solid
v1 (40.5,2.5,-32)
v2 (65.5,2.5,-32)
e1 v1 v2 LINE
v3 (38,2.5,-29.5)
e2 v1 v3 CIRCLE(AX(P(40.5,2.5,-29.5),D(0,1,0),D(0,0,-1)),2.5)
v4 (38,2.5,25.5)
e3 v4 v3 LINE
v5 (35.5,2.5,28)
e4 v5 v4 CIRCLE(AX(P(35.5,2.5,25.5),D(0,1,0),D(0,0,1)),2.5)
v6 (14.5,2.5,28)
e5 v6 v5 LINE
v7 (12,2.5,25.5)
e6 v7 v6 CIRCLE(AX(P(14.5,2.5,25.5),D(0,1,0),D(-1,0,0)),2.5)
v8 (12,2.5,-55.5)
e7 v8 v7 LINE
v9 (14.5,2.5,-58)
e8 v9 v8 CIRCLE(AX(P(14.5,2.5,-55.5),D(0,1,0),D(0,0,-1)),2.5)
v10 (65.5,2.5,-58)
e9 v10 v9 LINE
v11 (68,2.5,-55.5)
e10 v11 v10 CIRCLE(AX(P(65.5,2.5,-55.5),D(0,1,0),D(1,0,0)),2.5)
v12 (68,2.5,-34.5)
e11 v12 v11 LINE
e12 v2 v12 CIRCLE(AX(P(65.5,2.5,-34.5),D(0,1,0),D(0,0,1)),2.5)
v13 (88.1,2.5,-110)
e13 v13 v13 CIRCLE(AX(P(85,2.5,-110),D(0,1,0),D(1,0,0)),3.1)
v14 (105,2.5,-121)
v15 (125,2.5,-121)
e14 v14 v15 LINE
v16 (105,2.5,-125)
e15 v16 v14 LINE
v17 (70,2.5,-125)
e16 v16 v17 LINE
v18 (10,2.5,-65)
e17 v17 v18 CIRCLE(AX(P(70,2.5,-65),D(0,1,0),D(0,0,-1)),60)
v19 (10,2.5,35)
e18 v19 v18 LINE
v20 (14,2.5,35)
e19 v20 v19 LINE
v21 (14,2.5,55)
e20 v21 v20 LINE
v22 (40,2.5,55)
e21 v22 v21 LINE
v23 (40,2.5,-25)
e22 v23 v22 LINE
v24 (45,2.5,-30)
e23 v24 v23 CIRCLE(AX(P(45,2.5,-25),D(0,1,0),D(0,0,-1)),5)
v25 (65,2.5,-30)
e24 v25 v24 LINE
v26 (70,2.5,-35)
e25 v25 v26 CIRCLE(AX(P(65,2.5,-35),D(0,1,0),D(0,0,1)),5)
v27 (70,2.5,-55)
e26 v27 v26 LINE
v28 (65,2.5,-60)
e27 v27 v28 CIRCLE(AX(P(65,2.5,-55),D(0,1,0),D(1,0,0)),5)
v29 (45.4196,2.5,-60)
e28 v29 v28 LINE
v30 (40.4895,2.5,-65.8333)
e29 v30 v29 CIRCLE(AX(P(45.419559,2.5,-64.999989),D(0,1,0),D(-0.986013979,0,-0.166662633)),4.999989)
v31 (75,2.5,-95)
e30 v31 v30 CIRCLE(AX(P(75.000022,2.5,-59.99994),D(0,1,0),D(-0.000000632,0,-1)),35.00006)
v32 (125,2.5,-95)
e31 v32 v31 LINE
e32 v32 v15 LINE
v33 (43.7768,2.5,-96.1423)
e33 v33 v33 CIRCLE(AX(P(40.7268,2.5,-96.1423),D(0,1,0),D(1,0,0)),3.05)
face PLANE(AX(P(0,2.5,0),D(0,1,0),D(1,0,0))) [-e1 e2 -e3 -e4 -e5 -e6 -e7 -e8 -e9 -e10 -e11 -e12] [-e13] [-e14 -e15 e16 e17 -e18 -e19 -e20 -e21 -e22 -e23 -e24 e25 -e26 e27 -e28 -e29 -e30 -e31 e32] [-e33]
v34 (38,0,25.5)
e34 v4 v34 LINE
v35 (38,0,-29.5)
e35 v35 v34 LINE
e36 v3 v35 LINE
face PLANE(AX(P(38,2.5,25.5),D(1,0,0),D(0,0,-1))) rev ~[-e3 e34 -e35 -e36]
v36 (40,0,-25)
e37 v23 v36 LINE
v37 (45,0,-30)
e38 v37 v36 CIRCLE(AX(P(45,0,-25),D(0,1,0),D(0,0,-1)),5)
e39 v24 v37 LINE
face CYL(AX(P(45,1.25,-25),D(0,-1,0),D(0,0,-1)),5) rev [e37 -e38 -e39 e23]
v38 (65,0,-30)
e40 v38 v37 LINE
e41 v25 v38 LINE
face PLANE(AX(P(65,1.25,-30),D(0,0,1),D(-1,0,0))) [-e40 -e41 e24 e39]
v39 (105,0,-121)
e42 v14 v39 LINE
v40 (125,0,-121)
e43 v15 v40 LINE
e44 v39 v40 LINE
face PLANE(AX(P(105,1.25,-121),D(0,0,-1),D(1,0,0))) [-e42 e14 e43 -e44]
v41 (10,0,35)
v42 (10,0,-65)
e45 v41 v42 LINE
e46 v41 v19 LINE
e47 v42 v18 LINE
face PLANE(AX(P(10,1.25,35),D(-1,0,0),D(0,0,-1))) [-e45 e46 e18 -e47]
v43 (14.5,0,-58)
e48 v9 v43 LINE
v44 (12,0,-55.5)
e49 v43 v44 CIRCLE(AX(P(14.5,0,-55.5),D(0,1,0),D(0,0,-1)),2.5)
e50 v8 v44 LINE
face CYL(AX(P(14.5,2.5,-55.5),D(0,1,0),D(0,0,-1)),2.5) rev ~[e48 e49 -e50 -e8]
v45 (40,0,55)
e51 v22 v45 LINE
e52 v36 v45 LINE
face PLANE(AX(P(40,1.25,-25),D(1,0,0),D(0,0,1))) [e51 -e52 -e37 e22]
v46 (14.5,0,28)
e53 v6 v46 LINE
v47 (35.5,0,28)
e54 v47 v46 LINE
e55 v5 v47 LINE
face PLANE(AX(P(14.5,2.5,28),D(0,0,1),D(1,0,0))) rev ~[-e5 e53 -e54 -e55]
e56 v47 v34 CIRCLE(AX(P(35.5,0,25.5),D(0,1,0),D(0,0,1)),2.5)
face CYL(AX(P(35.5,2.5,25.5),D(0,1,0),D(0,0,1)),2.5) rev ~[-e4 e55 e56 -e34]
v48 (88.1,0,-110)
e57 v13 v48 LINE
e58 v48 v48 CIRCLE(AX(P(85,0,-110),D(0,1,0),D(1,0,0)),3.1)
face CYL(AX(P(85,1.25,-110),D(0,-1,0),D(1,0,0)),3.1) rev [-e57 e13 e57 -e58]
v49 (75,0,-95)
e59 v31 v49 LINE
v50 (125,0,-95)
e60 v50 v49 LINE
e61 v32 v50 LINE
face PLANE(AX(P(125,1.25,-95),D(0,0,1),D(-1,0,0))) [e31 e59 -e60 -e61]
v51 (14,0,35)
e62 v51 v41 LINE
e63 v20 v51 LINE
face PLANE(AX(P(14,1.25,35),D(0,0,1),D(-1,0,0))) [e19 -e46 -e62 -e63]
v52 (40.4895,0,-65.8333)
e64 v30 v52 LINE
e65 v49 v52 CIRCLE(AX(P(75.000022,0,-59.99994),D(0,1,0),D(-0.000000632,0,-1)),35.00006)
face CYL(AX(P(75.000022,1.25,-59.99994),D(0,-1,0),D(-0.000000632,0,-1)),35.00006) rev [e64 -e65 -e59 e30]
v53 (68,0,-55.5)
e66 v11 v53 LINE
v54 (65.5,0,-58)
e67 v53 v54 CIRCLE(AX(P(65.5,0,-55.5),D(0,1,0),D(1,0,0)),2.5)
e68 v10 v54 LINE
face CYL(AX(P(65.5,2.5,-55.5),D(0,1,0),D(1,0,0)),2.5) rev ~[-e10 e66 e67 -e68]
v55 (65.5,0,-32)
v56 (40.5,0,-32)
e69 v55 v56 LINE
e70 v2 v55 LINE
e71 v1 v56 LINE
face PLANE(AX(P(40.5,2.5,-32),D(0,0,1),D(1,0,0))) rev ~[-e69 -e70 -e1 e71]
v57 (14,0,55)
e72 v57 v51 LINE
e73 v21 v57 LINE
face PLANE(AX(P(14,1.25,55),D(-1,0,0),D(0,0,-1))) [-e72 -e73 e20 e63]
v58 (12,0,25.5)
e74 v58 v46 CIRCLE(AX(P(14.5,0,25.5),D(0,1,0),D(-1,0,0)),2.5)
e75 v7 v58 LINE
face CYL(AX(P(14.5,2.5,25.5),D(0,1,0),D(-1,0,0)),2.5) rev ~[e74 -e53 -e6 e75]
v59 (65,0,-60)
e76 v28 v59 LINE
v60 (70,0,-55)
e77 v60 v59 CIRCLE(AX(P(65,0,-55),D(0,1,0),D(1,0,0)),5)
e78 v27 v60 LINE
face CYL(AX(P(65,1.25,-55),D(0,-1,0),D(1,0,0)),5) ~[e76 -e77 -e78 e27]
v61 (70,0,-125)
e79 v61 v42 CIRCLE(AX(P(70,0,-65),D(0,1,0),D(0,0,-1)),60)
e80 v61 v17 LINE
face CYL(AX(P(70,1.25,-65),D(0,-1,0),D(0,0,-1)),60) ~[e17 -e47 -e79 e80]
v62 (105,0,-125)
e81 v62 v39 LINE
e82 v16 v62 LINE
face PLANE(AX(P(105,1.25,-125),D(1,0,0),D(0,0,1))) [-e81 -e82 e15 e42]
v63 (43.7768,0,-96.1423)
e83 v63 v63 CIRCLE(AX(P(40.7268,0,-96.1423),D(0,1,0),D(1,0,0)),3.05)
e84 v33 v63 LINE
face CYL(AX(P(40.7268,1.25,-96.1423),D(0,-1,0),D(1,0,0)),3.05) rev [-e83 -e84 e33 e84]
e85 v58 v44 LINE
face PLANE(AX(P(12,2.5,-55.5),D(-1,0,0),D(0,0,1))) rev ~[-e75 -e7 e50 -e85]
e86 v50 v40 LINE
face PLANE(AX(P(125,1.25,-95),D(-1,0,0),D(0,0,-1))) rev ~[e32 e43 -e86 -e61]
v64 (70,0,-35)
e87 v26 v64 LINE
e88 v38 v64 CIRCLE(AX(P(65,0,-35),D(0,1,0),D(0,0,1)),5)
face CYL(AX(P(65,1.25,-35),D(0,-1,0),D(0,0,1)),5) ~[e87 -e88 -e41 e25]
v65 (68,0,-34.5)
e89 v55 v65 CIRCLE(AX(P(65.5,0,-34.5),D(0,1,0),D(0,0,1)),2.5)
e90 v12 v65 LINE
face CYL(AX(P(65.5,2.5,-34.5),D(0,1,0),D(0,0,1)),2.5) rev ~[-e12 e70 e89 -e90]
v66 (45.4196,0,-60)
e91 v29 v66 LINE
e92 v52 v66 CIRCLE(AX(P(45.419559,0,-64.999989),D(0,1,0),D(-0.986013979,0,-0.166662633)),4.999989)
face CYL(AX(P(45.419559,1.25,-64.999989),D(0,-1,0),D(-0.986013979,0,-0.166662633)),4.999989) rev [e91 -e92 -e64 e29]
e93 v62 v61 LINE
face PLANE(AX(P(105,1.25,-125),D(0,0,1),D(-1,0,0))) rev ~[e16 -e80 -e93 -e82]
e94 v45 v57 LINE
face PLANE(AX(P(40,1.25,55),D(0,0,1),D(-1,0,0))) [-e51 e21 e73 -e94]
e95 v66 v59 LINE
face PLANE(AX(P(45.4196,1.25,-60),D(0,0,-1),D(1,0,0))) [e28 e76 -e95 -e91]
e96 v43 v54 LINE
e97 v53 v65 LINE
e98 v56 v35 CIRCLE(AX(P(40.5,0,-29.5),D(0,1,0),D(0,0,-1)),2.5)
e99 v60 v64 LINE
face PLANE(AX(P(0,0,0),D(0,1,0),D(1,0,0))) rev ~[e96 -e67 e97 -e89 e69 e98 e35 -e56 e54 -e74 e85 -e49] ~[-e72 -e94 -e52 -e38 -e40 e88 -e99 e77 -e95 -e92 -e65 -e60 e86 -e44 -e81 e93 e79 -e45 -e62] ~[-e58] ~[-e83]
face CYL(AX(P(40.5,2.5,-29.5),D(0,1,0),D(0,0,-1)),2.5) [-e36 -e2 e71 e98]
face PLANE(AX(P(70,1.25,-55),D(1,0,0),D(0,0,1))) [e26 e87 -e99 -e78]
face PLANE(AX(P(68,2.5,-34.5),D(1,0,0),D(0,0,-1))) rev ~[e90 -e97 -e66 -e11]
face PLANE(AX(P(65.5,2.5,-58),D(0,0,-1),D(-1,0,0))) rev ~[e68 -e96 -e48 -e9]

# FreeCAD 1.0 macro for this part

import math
import FreeCAD as App
import Part
import Sketcher
from FreeCAD import Vector
Q = App.Units.Quantity

doc = App.newDocument("Part")
body = doc.addObject("PartDesign::Body", "Body")

sketch1 = doc.addObject("Sketcher::SketchObject", "Sketch")
body.addObject(sketch1)
sketch1.AttachmentSupport = (doc.XZ_Plane, [""])
sketch1.MapMode = "FlatFace"
sketch1.AttachmentOffset = App.Placement(Vector(0, 0, -1.25), App.Rotation())
sketch1.addGeometry([
    Part.LineSegment(Vector(105, -125, 0), Vector(70, -125, 0)),
    Part.ArcOfCircle(Part.Circle(Vector(70, -65, 0), Vector(0, 0, 1), 60), math.radians(180), math.radians(270)),
    Part.LineSegment(Vector(10, -65, 0), Vector(10, 35, 0)),
    Part.LineSegment(Vector(10, 35, 0), Vector(14, 35, 0)),
    Part.LineSegment(Vector(14, 35, 0), Vector(14, 55, 0)),
    Part.LineSegment(Vector(14, 55, 0), Vector(40, 55, 0)),
    Part.LineSegment(Vector(40, 55, 0), Vector(40, -25, 0)),
    Part.ArcOfCircle(Part.Circle(Vector(45, -25, 0), Vector(0, 0, 1), 5), math.radians(180), math.radians(270)),
    Part.LineSegment(Vector(45, -30, 0), Vector(65, -30, 0)),
    Part.ArcOfCircle(Part.Circle(Vector(65, -35, 0), Vector(0, 0, 1), 5), math.radians(0), math.radians(90)),
    Part.LineSegment(Vector(70, -35, 0), Vector(70, -55, 0)),
    Part.ArcOfCircle(Part.Circle(Vector(65, -55, 0), Vector(0, 0, 1), 5), math.radians(-90), math.radians(0)),
    Part.LineSegment(Vector(65, -60, 0), Vector(45.4, -60, 0)),
    Part.ArcOfCircle(Part.Circle(Vector(45.4, -65, 0), Vector(0, 0, 1), 5), math.radians(90), math.radians(190)),
    Part.ArcOfCircle(Part.Circle(Vector(75, -60, 0), Vector(0, 0, 1), 35), math.radians(-170), math.radians(-90)),
    Part.LineSegment(Vector(75, -95, 0), Vector(125, -95, 0)),
    Part.LineSegment(Vector(125, -95, 0), Vector(125, -121, 0)),
    Part.LineSegment(Vector(125, -121, 0), Vector(105, -121, 0)),
    Part.LineSegment(Vector(105, -121, 0), Vector(105, -125, 0)),
    Part.Circle(Vector(25, 15, 0), Vector(0, 0, 1), 3.1),
    Part.Circle(Vector(25, -15, 0), Vector(0, 0, 1), 3.1),
    Part.Circle(Vector(25, -45, 0), Vector(0, 0, 1), 3.1),
    Part.Circle(Vector(55, -45, 0), Vector(0, 0, 1), 3.1),
    Part.Circle(Vector(40.7, -96.1, 0), Vector(0, 0, 1), 3),
    Part.Circle(Vector(85, -110, 0), Vector(0, 0, 1), 3.1),
], False)
sketch1.addConstraint([
    Sketcher.Constraint("Tangent", 0, 2, 1, 2),
    Sketcher.Constraint("Tangent", 1, 1, 2, 1),
    Sketcher.Constraint("Coincident", 2, 2, 3, 1),
    Sketcher.Constraint("Coincident", 3, 2, 4, 1),
    Sketcher.Constraint("Coincident", 4, 2, 5, 1),
    Sketcher.Constraint("Coincident", 5, 2, 6, 1),
    Sketcher.Constraint("Tangent", 6, 2, 7, 1),
    Sketcher.Constraint("Tangent", 7, 2, 8, 1),
    Sketcher.Constraint("Tangent", 8, 2, 9, 2),
    Sketcher.Constraint("Tangent", 9, 1, 10, 1),
    Sketcher.Constraint("Tangent", 10, 2, 11, 2),
    Sketcher.Constraint("Tangent", 11, 1, 12, 1),
    Sketcher.Constraint("Tangent", 12, 2, 13, 1),
    Sketcher.Constraint("Tangent", 13, 2, 14, 1),
    Sketcher.Constraint("Tangent", 14, 2, 15, 1),
    Sketcher.Constraint("Coincident", 15, 2, 16, 1),
    Sketcher.Constraint("Coincident", 16, 2, 17, 1),
    Sketcher.Constraint("Coincident", 17, 2, 18, 1),
    Sketcher.Constraint("Coincident", 18, 2, 0, 1),
    Sketcher.Constraint("Horizontal", 0),
    Sketcher.Constraint("Vertical", 2),
    Sketcher.Constraint("Horizontal", 3),
    Sketcher.Constraint("Vertical", 4),
    Sketcher.Constraint("Horizontal", 5),
    Sketcher.Constraint("Vertical", 6),
    Sketcher.Constraint("Horizontal", 8),
    Sketcher.Constraint("Vertical", 10),
    Sketcher.Constraint("Horizontal", 12),
    Sketcher.Constraint("Horizontal", 15),
    Sketcher.Constraint("Vertical", 16),
    Sketcher.Constraint("Horizontal", 17),
    Sketcher.Constraint("Vertical", 18),
    Sketcher.Constraint("Equal", 7, 9),
    Sketcher.Constraint("Equal", 9, 11),
    Sketcher.Constraint("Equal", 11, 13),
    Sketcher.Constraint("Equal", 19, 20),
    Sketcher.Constraint("Equal", 20, 21),
    Sketcher.Constraint("Equal", 21, 22),
    Sketcher.Constraint("Equal", 22, 24),
    Sketcher.Constraint("Symmetric", 19, 3, 20, 3, -1),
    Sketcher.Constraint("Horizontal", 1, 3, 13, 3),
    Sketcher.Constraint("Horizontal", 21, 3, 22, 3),
    Sketcher.Constraint("Horizontal", 14, 3, 11, 1),
    Sketcher.Constraint("Vertical", 20, 3, 21, 3),
    Sketcher.Constraint("Vertical", 0, 2, 9, 1),
    Sketcher.Constraint("Equal", 8, 17),
    Sketcher.Constraint("Equal", 17, 4),
    Sketcher.Constraint("Equal", 4, 10),
    Sketcher.Constraint("Equal", 5, 16),
    Sketcher.Constraint("Equal", 3, 18),
    Sketcher.Constraint("Radius", 1, Q("60 mm")),
    Sketcher.Constraint("Radius", 7, Q("5 mm")),
    Sketcher.Constraint("Radius", 14, Q("35 mm")),
    Sketcher.Constraint("Diameter", 19, Q("6.2 mm")),
    Sketcher.Constraint("Diameter", 23, Q("6.1 mm")),
    Sketcher.Constraint("DistanceX", 0, 2, 0, 1, Q("35 mm")),
    Sketcher.Constraint("DistanceX", 3, 1, 3, 2, Q("4 mm")),
    Sketcher.Constraint("DistanceX", 15, 1, 15, 2, Q("50 mm")),
    Sketcher.Constraint("DistanceY", 2, 1, 2, 2, Q("100 mm")),
    Sketcher.Constraint("DistanceX", -1, 1, 1, 3, Q("70 mm")),
    Sketcher.Constraint("DistanceY", 1, 3, -1, 1, Q("65 mm")),
    Sketcher.Constraint("DistanceX", -1, 1, 19, 3, Q("25 mm")),
    Sketcher.Constraint("DistanceY", -1, 1, 19, 3, Q("15 mm")),
    Sketcher.Constraint("DistanceY", 21, 3, -1, 1, Q("45 mm")),
    Sketcher.Constraint("DistanceX", -1, 1, 22, 3, Q("55 mm")),
    Sketcher.Constraint("DistanceX", -1, 1, 24, 3, Q("85 mm")),
    Sketcher.Constraint("DistanceY", 24, 3, -1, 1, Q("110 mm")),
    Sketcher.Constraint("DistanceX", -1, 1, 23, 3, Q("40.7268 mm")),
    Sketcher.Constraint("DistanceY", 23, 3, -1, 1, Q("96.1423 mm")),
])
pad1 = doc.addObject("PartDesign::Pad", "Pad")
body.addObject(pad1)
pad1.Profile = sketch1
pad1.Length = 2.5
pad1.Midplane = True

sketch2 = doc.addObject("Sketcher::SketchObject", "Sketch001")
body.addObject(sketch2)
sketch2.AttachmentSupport = (doc.XZ_Plane, [""])
sketch2.MapMode = "FlatFace"
sketch2.AttachmentOffset = App.Placement(Vector(0, 0, -2.5), App.Rotation())
sketch2.addGeometry([
    Part.ArcOfCircle(Part.Circle(Vector(65.5, -55.5, 0), Vector(0, 0, 1), 2.5), math.radians(-90), math.radians(0)),
    Part.LineSegment(Vector(65.5, -58, 0), Vector(14.5, -58, 0)),
    Part.ArcOfCircle(Part.Circle(Vector(14.5, -55.5, 0), Vector(0, 0, 1), 2.5), math.radians(180), math.radians(270)),
    Part.LineSegment(Vector(12, -55.5, 0), Vector(12, 25.5, 0)),
    Part.ArcOfCircle(Part.Circle(Vector(14.5, 25.5, 0), Vector(0, 0, 1), 2.5), math.radians(90), math.radians(180)),
    Part.LineSegment(Vector(14.5, 28, 0), Vector(35.5, 28, 0)),
    Part.ArcOfCircle(Part.Circle(Vector(35.5, 25.5, 0), Vector(0, 0, 1), 2.5), math.radians(0), math.radians(90)),
    Part.LineSegment(Vector(38, 25.5, 0), Vector(38, -29.5, 0)),
    Part.ArcOfCircle(Part.Circle(Vector(40.5, -29.5, 0), Vector(0, 0, 1), 2.5), math.radians(180), math.radians(270)),
    Part.LineSegment(Vector(40.5, -32, 0), Vector(65.5, -32, 0)),
    Part.ArcOfCircle(Part.Circle(Vector(65.5, -34.5, 0), Vector(0, 0, 1), 2.5), math.radians(0), math.radians(90)),
    Part.LineSegment(Vector(68, -34.5, 0), Vector(68, -55.5, 0)),
], False)
sketch2.addConstraint([
    Sketcher.Constraint("Tangent", 0, 1, 1, 1),
    Sketcher.Constraint("Tangent", 1, 2, 2, 2),
    Sketcher.Constraint("Tangent", 2, 1, 3, 1),
    Sketcher.Constraint("Tangent", 3, 2, 4, 2),
    Sketcher.Constraint("Tangent", 4, 1, 5, 1),
    Sketcher.Constraint("Tangent", 5, 2, 6, 2),
    Sketcher.Constraint("Tangent", 6, 1, 7, 1),
    Sketcher.Constraint("Tangent", 7, 2, 8, 1),
    Sketcher.Constraint("Tangent", 8, 2, 9, 1),
    Sketcher.Constraint("Tangent", 9, 2, 10, 2),
    Sketcher.Constraint("Tangent", 10, 1, 11, 1),
    Sketcher.Constraint("Tangent", 11, 2, 0, 2),
    Sketcher.Constraint("Horizontal", 1),
    Sketcher.Constraint("Vertical", 3),
    Sketcher.Constraint("Horizontal", 5),
    Sketcher.Constraint("Vertical", 7),
    Sketcher.Constraint("Horizontal", 9),
    Sketcher.Constraint("Vertical", 11),
    Sketcher.Constraint("Equal", 0, 2),
    Sketcher.Constraint("Equal", 2, 4),
    Sketcher.Constraint("Equal", 4, 6),
    Sketcher.Constraint("Equal", 6, 8),
    Sketcher.Constraint("Equal", 8, 10),
    Sketcher.Constraint("Equal", 5, 11),
    Sketcher.Constraint("Radius", 0, Q("2.5 mm")),
    Sketcher.Constraint("DistanceX", 1, 2, 1, 1, Q("51 mm")),
    Sketcher.Constraint("DistanceX", 5, 1, 5, 2, Q("21 mm")),
    Sketcher.Constraint("DistanceY", 3, 1, 3, 2, Q("81 mm")),
    Sketcher.Constraint("DistanceY", 0, 1, -1, 1, Q("58 mm")),
    Sketcher.Constraint("DistanceX", -1, 1, 2, 1, Q("12 mm")),
])
pocket1 = doc.addObject("PartDesign::Pocket", "Pocket")
body.addObject(pocket1)
pocket1.Profile = sketch2
pocket1.Type = "UpToFirst"
pocket1.Reversed = True

doc.recompute()
